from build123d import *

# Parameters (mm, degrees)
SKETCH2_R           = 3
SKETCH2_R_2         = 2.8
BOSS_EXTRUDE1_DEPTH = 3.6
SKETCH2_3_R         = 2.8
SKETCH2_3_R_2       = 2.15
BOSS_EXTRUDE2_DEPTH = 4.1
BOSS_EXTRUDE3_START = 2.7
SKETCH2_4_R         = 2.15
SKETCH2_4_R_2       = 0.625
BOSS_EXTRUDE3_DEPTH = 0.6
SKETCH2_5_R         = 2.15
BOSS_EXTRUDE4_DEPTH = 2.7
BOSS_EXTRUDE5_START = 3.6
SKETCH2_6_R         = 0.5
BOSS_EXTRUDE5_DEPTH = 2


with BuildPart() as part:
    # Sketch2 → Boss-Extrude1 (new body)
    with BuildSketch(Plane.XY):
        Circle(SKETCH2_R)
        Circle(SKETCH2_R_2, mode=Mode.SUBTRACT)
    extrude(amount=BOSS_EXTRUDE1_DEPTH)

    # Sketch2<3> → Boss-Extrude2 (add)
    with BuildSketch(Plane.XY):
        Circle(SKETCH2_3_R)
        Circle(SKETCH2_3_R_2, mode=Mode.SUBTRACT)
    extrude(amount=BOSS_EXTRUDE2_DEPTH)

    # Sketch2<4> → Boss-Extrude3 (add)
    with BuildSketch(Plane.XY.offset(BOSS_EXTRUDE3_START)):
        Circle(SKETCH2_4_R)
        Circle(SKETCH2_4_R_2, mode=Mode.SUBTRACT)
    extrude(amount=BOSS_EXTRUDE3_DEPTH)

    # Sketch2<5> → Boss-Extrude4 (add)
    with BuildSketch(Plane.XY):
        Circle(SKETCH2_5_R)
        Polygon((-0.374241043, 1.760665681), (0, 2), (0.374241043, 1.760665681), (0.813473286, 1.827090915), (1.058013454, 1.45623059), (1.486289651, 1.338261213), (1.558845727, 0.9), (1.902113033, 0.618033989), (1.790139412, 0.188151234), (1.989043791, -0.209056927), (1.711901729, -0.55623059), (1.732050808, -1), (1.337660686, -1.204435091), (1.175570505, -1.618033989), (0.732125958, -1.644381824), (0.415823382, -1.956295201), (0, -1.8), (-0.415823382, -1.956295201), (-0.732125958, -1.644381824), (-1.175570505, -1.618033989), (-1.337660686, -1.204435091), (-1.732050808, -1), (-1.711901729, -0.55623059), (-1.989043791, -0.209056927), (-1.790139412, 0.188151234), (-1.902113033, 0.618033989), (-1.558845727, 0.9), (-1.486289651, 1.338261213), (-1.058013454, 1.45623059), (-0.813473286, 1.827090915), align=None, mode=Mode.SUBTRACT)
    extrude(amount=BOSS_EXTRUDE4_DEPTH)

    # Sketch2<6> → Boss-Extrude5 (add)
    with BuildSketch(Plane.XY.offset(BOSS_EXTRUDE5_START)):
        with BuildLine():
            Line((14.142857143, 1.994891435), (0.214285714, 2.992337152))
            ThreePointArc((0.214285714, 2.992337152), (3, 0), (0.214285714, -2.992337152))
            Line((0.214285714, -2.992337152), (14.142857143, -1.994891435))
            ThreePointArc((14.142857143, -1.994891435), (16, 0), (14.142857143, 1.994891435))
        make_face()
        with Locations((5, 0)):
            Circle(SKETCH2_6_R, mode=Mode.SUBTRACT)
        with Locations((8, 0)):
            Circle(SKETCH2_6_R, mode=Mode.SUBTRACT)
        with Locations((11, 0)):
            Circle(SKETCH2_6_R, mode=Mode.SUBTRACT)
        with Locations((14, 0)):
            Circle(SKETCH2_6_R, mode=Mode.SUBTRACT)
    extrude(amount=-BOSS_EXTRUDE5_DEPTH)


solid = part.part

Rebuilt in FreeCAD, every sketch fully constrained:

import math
import FreeCAD as App
import Part
import Sketcher
from FreeCAD import Vector
Q = App.Units.Quantity


def add_polygon(sketch, points):
    """Adds a closed chain of lines whose ends are joined by coincident constraints."""
    first, n = sketch.GeometryCount, len(points)
    for a, b in zip(points, points[1:] + points[:1]):
        sketch.addGeometry(Part.LineSegment(App.Vector(*a, 0), App.Vector(*b, 0)), False)
    for i in range(n):
        sketch.addConstraint(Sketcher.Constraint("Coincident", first + i, 2, first + (i + 1) % n, 1))

doc = App.newDocument("Part")
body = doc.addObject("PartDesign::Body", "Body")

# Sketch on XY plane
sketch1 = doc.addObject("Sketcher::SketchObject", "Sketch")
body.addObject(sketch1)
sketch1.AttachmentSupport = (doc.XY_Plane, [""])
sketch1.MapMode = "FlatFace"
sketch1.addGeometry(Part.Circle(Vector(0, 0, 0), Vector(0, 0, 1), 3), False)
sketch1.addGeometry(Part.Circle(Vector(0, 0, 0), Vector(0, 0, 1), 2.8), False)
sketch1.addConstraint(Sketcher.Constraint("Coincident", 0, 3, -1, 1))
sketch1.addConstraint(Sketcher.Constraint("Coincident", 1, 3, -1, 1))
sketch1.addConstraint(Sketcher.Constraint("Diameter", 0, Q("6 mm")))
sketch1.addConstraint(Sketcher.Constraint("Diameter", 1, Q("5.6 mm")))
pad1 = doc.addObject("PartDesign::Pad", "Pad")
body.addObject(pad1)
pad1.Profile = sketch1
pad1.Length = 3.6

# Sketch on XY plane
sketch2 = doc.addObject("Sketcher::SketchObject", "Sketch001")
body.addObject(sketch2)
sketch2.AttachmentSupport = (doc.XY_Plane, [""])
sketch2.MapMode = "FlatFace"
sketch2.addGeometry(Part.Circle(Vector(0, 0, 0), Vector(0, 0, 1), 2.8), False)
sketch2.addGeometry(Part.Circle(Vector(0, 0, 0), Vector(0, 0, 1), 2.1), False)
sketch2.addConstraint(Sketcher.Constraint("Coincident", 0, 3, -1, 1))
sketch2.addConstraint(Sketcher.Constraint("Coincident", 1, 3, -1, 1))
sketch2.addConstraint(Sketcher.Constraint("Diameter", 0, Q("5.6 mm")))
sketch2.addConstraint(Sketcher.Constraint("Diameter", 1, Q("4.3 mm")))
pad2 = doc.addObject("PartDesign::Pad", "Pad001")
body.addObject(pad2)
pad2.Profile = sketch2
pad2.Length = 4.1

# Sketch on XY plane
sketch3 = doc.addObject("Sketcher::SketchObject", "Sketch002")
body.addObject(sketch3)
sketch3.AttachmentSupport = (doc.XY_Plane, [""])
sketch3.MapMode = "FlatFace"
sketch3.AttachmentOffset = App.Placement(Vector(0, 0, 2.7), App.Rotation())
sketch3.addGeometry(Part.Circle(Vector(0, 0, 0), Vector(0, 0, 1), 2.1), False)
sketch3.addGeometry(Part.Circle(Vector(0, 0, 0), Vector(0, 0, 1), 0.6), False)
sketch3.addConstraint(Sketcher.Constraint("Coincident", 0, 3, -1, 1))
sketch3.addConstraint(Sketcher.Constraint("Coincident", 1, 3, -1, 1))
sketch3.addConstraint(Sketcher.Constraint("Diameter", 0, Q("4.3 mm")))
sketch3.addConstraint(Sketcher.Constraint("Diameter", 1, Q("1.25 mm")))
pad3 = doc.addObject("PartDesign::Pad", "Pad002")
body.addObject(pad3)
pad3.Profile = sketch3
pad3.Length = 0.6

# Sketch on XY plane
sketch4 = doc.addObject("Sketcher::SketchObject", "Sketch003")
body.addObject(sketch4)
sketch4.AttachmentSupport = (doc.XY_Plane, [""])
sketch4.MapMode = "FlatFace"
sketch4.addGeometry(Part.Circle(Vector(0, 0, 0), Vector(0, 0, 1), 2.15), False)  # 0
add_polygon(sketch4, [(-0.813473, 1.827091), (-0.374241, 1.760666), (0, 2), (0.374241, 1.760666), (0.813473, 1.827091), (1.058013, 1.456231), (1.48629, 1.338261), (1.558846, 0.9), (1.902113, 0.618034), (1.790139, 0.188151), (1.989044, -0.209057), (1.711902, -0.556231), (1.732051, -1), (1.337661, -1.204435), (1.175571, -1.618034), (0.732126, -1.644382), (0.415823, -1.956295), (0, -1.8), (-0.415823, -1.956295), (-0.732126, -1.644382), (-1.175571, -1.618034), (-1.337661, -1.204435), (-1.732051, -1), (-1.711902, -0.556231), (-1.989044, -0.209057), (-1.790139, 0.188151), (-1.902113, 0.618034), (-1.558846, 0.9), (-1.48629, 1.338261), (-1.058013, 1.456231)])  # lines 1-30
sketch4.addConstraint(Sketcher.Constraint("Coincident", 0, 3, -1, 1))
sketch4.addConstraint(Sketcher.Constraint("PointOnObject", 2, 2, -2))
sketch4.addConstraint(Sketcher.Constraint("PointOnObject", 17, 2, -2))
sketch4.addConstraint(Sketcher.Constraint("Diameter", 0, Q("4.3 mm")))
sketch4.addConstraint(Sketcher.Constraint("DistanceY", -1, 1, 2, 2, Q("2 mm")))
sketch4.addConstraint(Sketcher.Constraint("DistanceY", 12, 2, -1, 1, Q("1 mm")))
sketch4.addConstraint(Sketcher.Constraint("DistanceY", 22, 2, -1, 1, Q("1 mm")))
sketch4.addConstraint(Sketcher.Constraint("DistanceY", -1, 1, 7, 2, Q("0.9 mm")))
sketch4.addConstraint(Sketcher.Constraint("DistanceY", 17, 2, -1, 1, Q("1.8 mm")))
sketch4.addConstraint(Sketcher.Constraint("DistanceY", -1, 1, 27, 2, Q("0.9 mm")))
sketch4.addConstraint(Sketcher.Constraint("DistanceX", -1, 1, 11, 2, Q("1.711902 mm")))
sketch4.addConstraint(Sketcher.Constraint("DistanceX", 23, 2, -1, 1, Q("1.711902 mm")))
sketch4.addConstraint(Sketcher.Constraint("DistanceX", 5, 2, 8, 2, Q("0.8441 mm")))
sketch4.addConstraint(Sketcher.Constraint("DistanceX", 7, 2, 10, 2, Q("0.430198 mm")))
sketch4.addConstraint(Sketcher.Constraint("DistanceY", 14, 2, 13, 2, Q("0.413599 mm")))
sketch4.addConstraint(Sketcher.Constraint("DistanceY", 20, 2, 21, 2, Q("0.413599 mm")))
sketch4.addConstraint(Sketcher.Constraint("DistanceX", 24, 2, 27, 2, Q("0.430198 mm")))
sketch4.addConstraint(Sketcher.Constraint("DistanceX", 26, 2, 29, 2, Q("0.8441 mm")))
sketch4.addConstraint(Sketcher.Constraint("DistanceX", 1, 2, -1, 1, Q("0.374241 mm")))
sketch4.addConstraint(Sketcher.Constraint("DistanceX", -1, 1, 3, 2, Q("0.374241 mm")))
sketch4.addConstraint(Sketcher.Constraint("DistanceY", -1, 1, 4, 2, Q("1.827091 mm")))
sketch4.addConstraint(Sketcher.Constraint("DistanceY", -1, 1, 5, 2, Q("1.456231 mm")))
sketch4.addConstraint(Sketcher.Constraint("DistanceX", -1, 1, 6, 2, Q("1.48629 mm")))
sketch4.addConstraint(Sketcher.Constraint("DistanceY", -1, 1, 6, 2, Q("1.338261 mm")))
sketch4.addConstraint(Sketcher.Constraint("DistanceX", -1, 1, 9, 2, Q("1.790139 mm")))
sketch4.addConstraint(Sketcher.Constraint("DistanceY", -1, 1, 9, 2, Q("0.188151 mm")))
sketch4.addConstraint(Sketcher.Constraint("DistanceY", 11, 2, -1, 1, Q("0.556231 mm")))
sketch4.addConstraint(Sketcher.Constraint("DistanceX", -1, 1, 12, 2, Q("1.732051 mm")))
sketch4.addConstraint(Sketcher.Constraint("DistanceX", -1, 1, 13, 2, Q("1.337661 mm")))
sketch4.addConstraint(Sketcher.Constraint("DistanceX", -1, 1, 14, 2, Q("1.175571 mm")))
sketch4.addConstraint(Sketcher.Constraint("DistanceY", 15, 2, -1, 1, Q("1.644382 mm")))
sketch4.addConstraint(Sketcher.Constraint("DistanceY", 19, 2, -1, 1, Q("1.644382 mm")))
sketch4.addConstraint(Sketcher.Constraint("DistanceX", 20, 2, -1, 1, Q("1.175571 mm")))
sketch4.addConstraint(Sketcher.Constraint("DistanceX", 21, 2, -1, 1, Q("1.337661 mm")))
sketch4.addConstraint(Sketcher.Constraint("DistanceX", 22, 2, -1, 1, Q("1.732051 mm")))
sketch4.addConstraint(Sketcher.Constraint("DistanceY", 23, 2, -1, 1, Q("0.556231 mm")))
sketch4.addConstraint(Sketcher.Constraint("DistanceX", 25, 2, -1, 1, Q("1.790139 mm")))
sketch4.addConstraint(Sketcher.Constraint("DistanceY", -1, 1, 25, 2, Q("0.188151 mm")))
sketch4.addConstraint(Sketcher.Constraint("DistanceX", 28, 2, -1, 1, Q("1.48629 mm")))
sketch4.addConstraint(Sketcher.Constraint("DistanceY", -1, 1, 28, 2, Q("1.338261 mm")))
sketch4.addConstraint(Sketcher.Constraint("DistanceY", -1, 1, 29, 2, Q("1.456231 mm")))
sketch4.addConstraint(Sketcher.Constraint("DistanceY", -1, 1, 30, 2, Q("1.827091 mm")))
sketch4.addConstraint(Sketcher.Constraint("DistanceX", 4, 2, 5, 2, Q("0.24454 mm")))
sketch4.addConstraint(Sketcher.Constraint("DistanceX", 3, 2, 8, 2, Q("1.527872 mm")))
sketch4.addConstraint(Sketcher.Constraint("DistanceY", 8, 2, 3, 2, Q("1.142632 mm")))
sketch4.addConstraint(Sketcher.Constraint("DistanceY", 10, 2, 9, 2, Q("0.397208 mm")))
sketch4.addConstraint(Sketcher.Constraint("DistanceX", 8, 2, 10, 2, Q("0.086931 mm")))
sketch4.addConstraint(Sketcher.Constraint("DistanceY", 10, 2, 8, 2, Q("0.827091 mm")))
sketch4.addConstraint(Sketcher.Constraint("DistanceY", 13, 2, 10, 2, Q("0.995378 mm")))
sketch4.addConstraint(Sketcher.Constraint("DistanceY", 16, 2, 14, 2, Q("0.338261 mm")))
sketch4.addConstraint(Sketcher.Constraint("DistanceX", 16, 2, 11, 2, Q("1.296078 mm")))
sketch4.addConstraint(Sketcher.Constraint("DistanceX", 18, 2, 15, 2, Q("1.147949 mm")))
sketch4.addConstraint(Sketcher.Constraint("DistanceY", 18, 2, 14, 2, Q("0.338261 mm")))
sketch4.addConstraint(Sketcher.Constraint("DistanceX", 19, 2, 16, 2, Q("1.147949 mm")))
sketch4.addConstraint(Sketcher.Constraint("DistanceX", 19, 2, 15, 2, Q("1.464252 mm")))
sketch4.addConstraint(Sketcher.Constraint("DistanceY", 18, 2, 20, 2, Q("0.338261 mm")))
sketch4.addConstraint(Sketcher.Constraint("DistanceY", 21, 2, 24, 2, Q("0.995378 mm")))
sketch4.addConstraint(Sketcher.Constraint("DistanceX", 24, 2, 26, 2, Q("0.086931 mm")))
sketch4.addConstraint(Sketcher.Constraint("DistanceY", 24, 2, 26, 2, Q("0.827091 mm")))
sketch4.addConstraint(Sketcher.Constraint("DistanceX", 26, 2, 23, 2, Q("0.190211 mm")))
sketch4.addConstraint(Sketcher.Constraint("DistanceX", 29, 2, 30, 2, Q("0.24454 mm")))
sketch4.addConstraint(Sketcher.Constraint("Distance", 1, Q("0.444227 mm")))
pad4 = doc.addObject("PartDesign::Pad", "Pad003")
body.addObject(pad4)
pad4.Profile = sketch4
pad4.Length = 2.7

# Sketch on XY plane
sketch5 = doc.addObject("Sketcher::SketchObject", "Sketch004")
body.addObject(sketch5)
sketch5.AttachmentSupport = (doc.XY_Plane, [""])
sketch5.MapMode = "FlatFace"
sketch5.AttachmentOffset = App.Placement(Vector(0, 0, 3.6), App.Rotation())
sketch5.addGeometry(Part.LineSegment(Vector(14.1, 2, 0), Vector(0.2, 3, 0)), False)
sketch5.addGeometry(Part.ArcOfCircle(Part.Circle(Vector(0, 0, 0), Vector(0, 0, 1), 3), math.radians(-86), math.radians(86)), False)
sketch5.addGeometry(Part.LineSegment(Vector(0.2, -3, 0), Vector(14.1, -2, 0)), False)
sketch5.addGeometry(Part.ArcOfCircle(Part.Circle(Vector(14, 0, 0), Vector(0, 0, 1), 2), math.radians(-86), math.radians(86)), False)
sketch5.addGeometry(Part.Circle(Vector(5, 0, 0), Vector(0, 0, 1), 0.5), False)
sketch5.addGeometry(Part.Circle(Vector(8, 0, 0), Vector(0, 0, 1), 0.5), False)
sketch5.addGeometry(Part.Circle(Vector(11, 0, 0), Vector(0, 0, 1), 0.5), False)
sketch5.addGeometry(Part.Circle(Vector(14, 0, 0), Vector(0, 0, 1), 0.5), False)
sketch5.addConstraint(Sketcher.Constraint("Tangent", 0, 2, 1, 2))
sketch5.addConstraint(Sketcher.Constraint("Tangent", 1, 1, 2, 1))
sketch5.addConstraint(Sketcher.Constraint("Tangent", 2, 2, 3, 1))
sketch5.addConstraint(Sketcher.Constraint("Tangent", 3, 2, 0, 1))
sketch5.addConstraint(Sketcher.Constraint("Coincident", 1, 3, -1, 1))
sketch5.addConstraint(Sketcher.Constraint("Coincident", 7, 3, 3, 3))
sketch5.addConstraint(Sketcher.Constraint("Equal", 4, 5))
sketch5.addConstraint(Sketcher.Constraint("Equal", 5, 6))
sketch5.addConstraint(Sketcher.Constraint("Equal", 6, 7))
sketch5.addConstraint(Sketcher.Constraint("PointOnObject", 3, 3, -1))
sketch5.addConstraint(Sketcher.Constraint("PointOnObject", 4, 3, -1))
sketch5.addConstraint(Sketcher.Constraint("PointOnObject", 5, 3, -1))
sketch5.addConstraint(Sketcher.Constraint("PointOnObject", 6, 3, -1))
sketch5.addConstraint(Sketcher.Constraint("Diameter", 4, Q("1 mm")))
sketch5.addConstraint(Sketcher.Constraint("Radius", 1, Q("3 mm")))
sketch5.addConstraint(Sketcher.Constraint("Radius", 3, Q("2 mm")))
sketch5.addConstraint(Sketcher.Constraint("DistanceX", -1, 1, 3, 3, Q("14 mm")))
sketch5.addConstraint(Sketcher.Constraint("DistanceX", -1, 1, 4, 3, Q("5 mm")))
sketch5.addConstraint(Sketcher.Constraint("DistanceX", -1, 1, 5, 3, Q("8 mm")))
sketch5.addConstraint(Sketcher.Constraint("DistanceX", -1, 1, 6, 3, Q("11 mm")))
pad5 = doc.addObject("PartDesign::Pad", "Pad004")
body.addObject(pad5)
pad5.Profile = sketch5
pad5.Length = 2
pad5.Reversed = True

doc.recompute()
